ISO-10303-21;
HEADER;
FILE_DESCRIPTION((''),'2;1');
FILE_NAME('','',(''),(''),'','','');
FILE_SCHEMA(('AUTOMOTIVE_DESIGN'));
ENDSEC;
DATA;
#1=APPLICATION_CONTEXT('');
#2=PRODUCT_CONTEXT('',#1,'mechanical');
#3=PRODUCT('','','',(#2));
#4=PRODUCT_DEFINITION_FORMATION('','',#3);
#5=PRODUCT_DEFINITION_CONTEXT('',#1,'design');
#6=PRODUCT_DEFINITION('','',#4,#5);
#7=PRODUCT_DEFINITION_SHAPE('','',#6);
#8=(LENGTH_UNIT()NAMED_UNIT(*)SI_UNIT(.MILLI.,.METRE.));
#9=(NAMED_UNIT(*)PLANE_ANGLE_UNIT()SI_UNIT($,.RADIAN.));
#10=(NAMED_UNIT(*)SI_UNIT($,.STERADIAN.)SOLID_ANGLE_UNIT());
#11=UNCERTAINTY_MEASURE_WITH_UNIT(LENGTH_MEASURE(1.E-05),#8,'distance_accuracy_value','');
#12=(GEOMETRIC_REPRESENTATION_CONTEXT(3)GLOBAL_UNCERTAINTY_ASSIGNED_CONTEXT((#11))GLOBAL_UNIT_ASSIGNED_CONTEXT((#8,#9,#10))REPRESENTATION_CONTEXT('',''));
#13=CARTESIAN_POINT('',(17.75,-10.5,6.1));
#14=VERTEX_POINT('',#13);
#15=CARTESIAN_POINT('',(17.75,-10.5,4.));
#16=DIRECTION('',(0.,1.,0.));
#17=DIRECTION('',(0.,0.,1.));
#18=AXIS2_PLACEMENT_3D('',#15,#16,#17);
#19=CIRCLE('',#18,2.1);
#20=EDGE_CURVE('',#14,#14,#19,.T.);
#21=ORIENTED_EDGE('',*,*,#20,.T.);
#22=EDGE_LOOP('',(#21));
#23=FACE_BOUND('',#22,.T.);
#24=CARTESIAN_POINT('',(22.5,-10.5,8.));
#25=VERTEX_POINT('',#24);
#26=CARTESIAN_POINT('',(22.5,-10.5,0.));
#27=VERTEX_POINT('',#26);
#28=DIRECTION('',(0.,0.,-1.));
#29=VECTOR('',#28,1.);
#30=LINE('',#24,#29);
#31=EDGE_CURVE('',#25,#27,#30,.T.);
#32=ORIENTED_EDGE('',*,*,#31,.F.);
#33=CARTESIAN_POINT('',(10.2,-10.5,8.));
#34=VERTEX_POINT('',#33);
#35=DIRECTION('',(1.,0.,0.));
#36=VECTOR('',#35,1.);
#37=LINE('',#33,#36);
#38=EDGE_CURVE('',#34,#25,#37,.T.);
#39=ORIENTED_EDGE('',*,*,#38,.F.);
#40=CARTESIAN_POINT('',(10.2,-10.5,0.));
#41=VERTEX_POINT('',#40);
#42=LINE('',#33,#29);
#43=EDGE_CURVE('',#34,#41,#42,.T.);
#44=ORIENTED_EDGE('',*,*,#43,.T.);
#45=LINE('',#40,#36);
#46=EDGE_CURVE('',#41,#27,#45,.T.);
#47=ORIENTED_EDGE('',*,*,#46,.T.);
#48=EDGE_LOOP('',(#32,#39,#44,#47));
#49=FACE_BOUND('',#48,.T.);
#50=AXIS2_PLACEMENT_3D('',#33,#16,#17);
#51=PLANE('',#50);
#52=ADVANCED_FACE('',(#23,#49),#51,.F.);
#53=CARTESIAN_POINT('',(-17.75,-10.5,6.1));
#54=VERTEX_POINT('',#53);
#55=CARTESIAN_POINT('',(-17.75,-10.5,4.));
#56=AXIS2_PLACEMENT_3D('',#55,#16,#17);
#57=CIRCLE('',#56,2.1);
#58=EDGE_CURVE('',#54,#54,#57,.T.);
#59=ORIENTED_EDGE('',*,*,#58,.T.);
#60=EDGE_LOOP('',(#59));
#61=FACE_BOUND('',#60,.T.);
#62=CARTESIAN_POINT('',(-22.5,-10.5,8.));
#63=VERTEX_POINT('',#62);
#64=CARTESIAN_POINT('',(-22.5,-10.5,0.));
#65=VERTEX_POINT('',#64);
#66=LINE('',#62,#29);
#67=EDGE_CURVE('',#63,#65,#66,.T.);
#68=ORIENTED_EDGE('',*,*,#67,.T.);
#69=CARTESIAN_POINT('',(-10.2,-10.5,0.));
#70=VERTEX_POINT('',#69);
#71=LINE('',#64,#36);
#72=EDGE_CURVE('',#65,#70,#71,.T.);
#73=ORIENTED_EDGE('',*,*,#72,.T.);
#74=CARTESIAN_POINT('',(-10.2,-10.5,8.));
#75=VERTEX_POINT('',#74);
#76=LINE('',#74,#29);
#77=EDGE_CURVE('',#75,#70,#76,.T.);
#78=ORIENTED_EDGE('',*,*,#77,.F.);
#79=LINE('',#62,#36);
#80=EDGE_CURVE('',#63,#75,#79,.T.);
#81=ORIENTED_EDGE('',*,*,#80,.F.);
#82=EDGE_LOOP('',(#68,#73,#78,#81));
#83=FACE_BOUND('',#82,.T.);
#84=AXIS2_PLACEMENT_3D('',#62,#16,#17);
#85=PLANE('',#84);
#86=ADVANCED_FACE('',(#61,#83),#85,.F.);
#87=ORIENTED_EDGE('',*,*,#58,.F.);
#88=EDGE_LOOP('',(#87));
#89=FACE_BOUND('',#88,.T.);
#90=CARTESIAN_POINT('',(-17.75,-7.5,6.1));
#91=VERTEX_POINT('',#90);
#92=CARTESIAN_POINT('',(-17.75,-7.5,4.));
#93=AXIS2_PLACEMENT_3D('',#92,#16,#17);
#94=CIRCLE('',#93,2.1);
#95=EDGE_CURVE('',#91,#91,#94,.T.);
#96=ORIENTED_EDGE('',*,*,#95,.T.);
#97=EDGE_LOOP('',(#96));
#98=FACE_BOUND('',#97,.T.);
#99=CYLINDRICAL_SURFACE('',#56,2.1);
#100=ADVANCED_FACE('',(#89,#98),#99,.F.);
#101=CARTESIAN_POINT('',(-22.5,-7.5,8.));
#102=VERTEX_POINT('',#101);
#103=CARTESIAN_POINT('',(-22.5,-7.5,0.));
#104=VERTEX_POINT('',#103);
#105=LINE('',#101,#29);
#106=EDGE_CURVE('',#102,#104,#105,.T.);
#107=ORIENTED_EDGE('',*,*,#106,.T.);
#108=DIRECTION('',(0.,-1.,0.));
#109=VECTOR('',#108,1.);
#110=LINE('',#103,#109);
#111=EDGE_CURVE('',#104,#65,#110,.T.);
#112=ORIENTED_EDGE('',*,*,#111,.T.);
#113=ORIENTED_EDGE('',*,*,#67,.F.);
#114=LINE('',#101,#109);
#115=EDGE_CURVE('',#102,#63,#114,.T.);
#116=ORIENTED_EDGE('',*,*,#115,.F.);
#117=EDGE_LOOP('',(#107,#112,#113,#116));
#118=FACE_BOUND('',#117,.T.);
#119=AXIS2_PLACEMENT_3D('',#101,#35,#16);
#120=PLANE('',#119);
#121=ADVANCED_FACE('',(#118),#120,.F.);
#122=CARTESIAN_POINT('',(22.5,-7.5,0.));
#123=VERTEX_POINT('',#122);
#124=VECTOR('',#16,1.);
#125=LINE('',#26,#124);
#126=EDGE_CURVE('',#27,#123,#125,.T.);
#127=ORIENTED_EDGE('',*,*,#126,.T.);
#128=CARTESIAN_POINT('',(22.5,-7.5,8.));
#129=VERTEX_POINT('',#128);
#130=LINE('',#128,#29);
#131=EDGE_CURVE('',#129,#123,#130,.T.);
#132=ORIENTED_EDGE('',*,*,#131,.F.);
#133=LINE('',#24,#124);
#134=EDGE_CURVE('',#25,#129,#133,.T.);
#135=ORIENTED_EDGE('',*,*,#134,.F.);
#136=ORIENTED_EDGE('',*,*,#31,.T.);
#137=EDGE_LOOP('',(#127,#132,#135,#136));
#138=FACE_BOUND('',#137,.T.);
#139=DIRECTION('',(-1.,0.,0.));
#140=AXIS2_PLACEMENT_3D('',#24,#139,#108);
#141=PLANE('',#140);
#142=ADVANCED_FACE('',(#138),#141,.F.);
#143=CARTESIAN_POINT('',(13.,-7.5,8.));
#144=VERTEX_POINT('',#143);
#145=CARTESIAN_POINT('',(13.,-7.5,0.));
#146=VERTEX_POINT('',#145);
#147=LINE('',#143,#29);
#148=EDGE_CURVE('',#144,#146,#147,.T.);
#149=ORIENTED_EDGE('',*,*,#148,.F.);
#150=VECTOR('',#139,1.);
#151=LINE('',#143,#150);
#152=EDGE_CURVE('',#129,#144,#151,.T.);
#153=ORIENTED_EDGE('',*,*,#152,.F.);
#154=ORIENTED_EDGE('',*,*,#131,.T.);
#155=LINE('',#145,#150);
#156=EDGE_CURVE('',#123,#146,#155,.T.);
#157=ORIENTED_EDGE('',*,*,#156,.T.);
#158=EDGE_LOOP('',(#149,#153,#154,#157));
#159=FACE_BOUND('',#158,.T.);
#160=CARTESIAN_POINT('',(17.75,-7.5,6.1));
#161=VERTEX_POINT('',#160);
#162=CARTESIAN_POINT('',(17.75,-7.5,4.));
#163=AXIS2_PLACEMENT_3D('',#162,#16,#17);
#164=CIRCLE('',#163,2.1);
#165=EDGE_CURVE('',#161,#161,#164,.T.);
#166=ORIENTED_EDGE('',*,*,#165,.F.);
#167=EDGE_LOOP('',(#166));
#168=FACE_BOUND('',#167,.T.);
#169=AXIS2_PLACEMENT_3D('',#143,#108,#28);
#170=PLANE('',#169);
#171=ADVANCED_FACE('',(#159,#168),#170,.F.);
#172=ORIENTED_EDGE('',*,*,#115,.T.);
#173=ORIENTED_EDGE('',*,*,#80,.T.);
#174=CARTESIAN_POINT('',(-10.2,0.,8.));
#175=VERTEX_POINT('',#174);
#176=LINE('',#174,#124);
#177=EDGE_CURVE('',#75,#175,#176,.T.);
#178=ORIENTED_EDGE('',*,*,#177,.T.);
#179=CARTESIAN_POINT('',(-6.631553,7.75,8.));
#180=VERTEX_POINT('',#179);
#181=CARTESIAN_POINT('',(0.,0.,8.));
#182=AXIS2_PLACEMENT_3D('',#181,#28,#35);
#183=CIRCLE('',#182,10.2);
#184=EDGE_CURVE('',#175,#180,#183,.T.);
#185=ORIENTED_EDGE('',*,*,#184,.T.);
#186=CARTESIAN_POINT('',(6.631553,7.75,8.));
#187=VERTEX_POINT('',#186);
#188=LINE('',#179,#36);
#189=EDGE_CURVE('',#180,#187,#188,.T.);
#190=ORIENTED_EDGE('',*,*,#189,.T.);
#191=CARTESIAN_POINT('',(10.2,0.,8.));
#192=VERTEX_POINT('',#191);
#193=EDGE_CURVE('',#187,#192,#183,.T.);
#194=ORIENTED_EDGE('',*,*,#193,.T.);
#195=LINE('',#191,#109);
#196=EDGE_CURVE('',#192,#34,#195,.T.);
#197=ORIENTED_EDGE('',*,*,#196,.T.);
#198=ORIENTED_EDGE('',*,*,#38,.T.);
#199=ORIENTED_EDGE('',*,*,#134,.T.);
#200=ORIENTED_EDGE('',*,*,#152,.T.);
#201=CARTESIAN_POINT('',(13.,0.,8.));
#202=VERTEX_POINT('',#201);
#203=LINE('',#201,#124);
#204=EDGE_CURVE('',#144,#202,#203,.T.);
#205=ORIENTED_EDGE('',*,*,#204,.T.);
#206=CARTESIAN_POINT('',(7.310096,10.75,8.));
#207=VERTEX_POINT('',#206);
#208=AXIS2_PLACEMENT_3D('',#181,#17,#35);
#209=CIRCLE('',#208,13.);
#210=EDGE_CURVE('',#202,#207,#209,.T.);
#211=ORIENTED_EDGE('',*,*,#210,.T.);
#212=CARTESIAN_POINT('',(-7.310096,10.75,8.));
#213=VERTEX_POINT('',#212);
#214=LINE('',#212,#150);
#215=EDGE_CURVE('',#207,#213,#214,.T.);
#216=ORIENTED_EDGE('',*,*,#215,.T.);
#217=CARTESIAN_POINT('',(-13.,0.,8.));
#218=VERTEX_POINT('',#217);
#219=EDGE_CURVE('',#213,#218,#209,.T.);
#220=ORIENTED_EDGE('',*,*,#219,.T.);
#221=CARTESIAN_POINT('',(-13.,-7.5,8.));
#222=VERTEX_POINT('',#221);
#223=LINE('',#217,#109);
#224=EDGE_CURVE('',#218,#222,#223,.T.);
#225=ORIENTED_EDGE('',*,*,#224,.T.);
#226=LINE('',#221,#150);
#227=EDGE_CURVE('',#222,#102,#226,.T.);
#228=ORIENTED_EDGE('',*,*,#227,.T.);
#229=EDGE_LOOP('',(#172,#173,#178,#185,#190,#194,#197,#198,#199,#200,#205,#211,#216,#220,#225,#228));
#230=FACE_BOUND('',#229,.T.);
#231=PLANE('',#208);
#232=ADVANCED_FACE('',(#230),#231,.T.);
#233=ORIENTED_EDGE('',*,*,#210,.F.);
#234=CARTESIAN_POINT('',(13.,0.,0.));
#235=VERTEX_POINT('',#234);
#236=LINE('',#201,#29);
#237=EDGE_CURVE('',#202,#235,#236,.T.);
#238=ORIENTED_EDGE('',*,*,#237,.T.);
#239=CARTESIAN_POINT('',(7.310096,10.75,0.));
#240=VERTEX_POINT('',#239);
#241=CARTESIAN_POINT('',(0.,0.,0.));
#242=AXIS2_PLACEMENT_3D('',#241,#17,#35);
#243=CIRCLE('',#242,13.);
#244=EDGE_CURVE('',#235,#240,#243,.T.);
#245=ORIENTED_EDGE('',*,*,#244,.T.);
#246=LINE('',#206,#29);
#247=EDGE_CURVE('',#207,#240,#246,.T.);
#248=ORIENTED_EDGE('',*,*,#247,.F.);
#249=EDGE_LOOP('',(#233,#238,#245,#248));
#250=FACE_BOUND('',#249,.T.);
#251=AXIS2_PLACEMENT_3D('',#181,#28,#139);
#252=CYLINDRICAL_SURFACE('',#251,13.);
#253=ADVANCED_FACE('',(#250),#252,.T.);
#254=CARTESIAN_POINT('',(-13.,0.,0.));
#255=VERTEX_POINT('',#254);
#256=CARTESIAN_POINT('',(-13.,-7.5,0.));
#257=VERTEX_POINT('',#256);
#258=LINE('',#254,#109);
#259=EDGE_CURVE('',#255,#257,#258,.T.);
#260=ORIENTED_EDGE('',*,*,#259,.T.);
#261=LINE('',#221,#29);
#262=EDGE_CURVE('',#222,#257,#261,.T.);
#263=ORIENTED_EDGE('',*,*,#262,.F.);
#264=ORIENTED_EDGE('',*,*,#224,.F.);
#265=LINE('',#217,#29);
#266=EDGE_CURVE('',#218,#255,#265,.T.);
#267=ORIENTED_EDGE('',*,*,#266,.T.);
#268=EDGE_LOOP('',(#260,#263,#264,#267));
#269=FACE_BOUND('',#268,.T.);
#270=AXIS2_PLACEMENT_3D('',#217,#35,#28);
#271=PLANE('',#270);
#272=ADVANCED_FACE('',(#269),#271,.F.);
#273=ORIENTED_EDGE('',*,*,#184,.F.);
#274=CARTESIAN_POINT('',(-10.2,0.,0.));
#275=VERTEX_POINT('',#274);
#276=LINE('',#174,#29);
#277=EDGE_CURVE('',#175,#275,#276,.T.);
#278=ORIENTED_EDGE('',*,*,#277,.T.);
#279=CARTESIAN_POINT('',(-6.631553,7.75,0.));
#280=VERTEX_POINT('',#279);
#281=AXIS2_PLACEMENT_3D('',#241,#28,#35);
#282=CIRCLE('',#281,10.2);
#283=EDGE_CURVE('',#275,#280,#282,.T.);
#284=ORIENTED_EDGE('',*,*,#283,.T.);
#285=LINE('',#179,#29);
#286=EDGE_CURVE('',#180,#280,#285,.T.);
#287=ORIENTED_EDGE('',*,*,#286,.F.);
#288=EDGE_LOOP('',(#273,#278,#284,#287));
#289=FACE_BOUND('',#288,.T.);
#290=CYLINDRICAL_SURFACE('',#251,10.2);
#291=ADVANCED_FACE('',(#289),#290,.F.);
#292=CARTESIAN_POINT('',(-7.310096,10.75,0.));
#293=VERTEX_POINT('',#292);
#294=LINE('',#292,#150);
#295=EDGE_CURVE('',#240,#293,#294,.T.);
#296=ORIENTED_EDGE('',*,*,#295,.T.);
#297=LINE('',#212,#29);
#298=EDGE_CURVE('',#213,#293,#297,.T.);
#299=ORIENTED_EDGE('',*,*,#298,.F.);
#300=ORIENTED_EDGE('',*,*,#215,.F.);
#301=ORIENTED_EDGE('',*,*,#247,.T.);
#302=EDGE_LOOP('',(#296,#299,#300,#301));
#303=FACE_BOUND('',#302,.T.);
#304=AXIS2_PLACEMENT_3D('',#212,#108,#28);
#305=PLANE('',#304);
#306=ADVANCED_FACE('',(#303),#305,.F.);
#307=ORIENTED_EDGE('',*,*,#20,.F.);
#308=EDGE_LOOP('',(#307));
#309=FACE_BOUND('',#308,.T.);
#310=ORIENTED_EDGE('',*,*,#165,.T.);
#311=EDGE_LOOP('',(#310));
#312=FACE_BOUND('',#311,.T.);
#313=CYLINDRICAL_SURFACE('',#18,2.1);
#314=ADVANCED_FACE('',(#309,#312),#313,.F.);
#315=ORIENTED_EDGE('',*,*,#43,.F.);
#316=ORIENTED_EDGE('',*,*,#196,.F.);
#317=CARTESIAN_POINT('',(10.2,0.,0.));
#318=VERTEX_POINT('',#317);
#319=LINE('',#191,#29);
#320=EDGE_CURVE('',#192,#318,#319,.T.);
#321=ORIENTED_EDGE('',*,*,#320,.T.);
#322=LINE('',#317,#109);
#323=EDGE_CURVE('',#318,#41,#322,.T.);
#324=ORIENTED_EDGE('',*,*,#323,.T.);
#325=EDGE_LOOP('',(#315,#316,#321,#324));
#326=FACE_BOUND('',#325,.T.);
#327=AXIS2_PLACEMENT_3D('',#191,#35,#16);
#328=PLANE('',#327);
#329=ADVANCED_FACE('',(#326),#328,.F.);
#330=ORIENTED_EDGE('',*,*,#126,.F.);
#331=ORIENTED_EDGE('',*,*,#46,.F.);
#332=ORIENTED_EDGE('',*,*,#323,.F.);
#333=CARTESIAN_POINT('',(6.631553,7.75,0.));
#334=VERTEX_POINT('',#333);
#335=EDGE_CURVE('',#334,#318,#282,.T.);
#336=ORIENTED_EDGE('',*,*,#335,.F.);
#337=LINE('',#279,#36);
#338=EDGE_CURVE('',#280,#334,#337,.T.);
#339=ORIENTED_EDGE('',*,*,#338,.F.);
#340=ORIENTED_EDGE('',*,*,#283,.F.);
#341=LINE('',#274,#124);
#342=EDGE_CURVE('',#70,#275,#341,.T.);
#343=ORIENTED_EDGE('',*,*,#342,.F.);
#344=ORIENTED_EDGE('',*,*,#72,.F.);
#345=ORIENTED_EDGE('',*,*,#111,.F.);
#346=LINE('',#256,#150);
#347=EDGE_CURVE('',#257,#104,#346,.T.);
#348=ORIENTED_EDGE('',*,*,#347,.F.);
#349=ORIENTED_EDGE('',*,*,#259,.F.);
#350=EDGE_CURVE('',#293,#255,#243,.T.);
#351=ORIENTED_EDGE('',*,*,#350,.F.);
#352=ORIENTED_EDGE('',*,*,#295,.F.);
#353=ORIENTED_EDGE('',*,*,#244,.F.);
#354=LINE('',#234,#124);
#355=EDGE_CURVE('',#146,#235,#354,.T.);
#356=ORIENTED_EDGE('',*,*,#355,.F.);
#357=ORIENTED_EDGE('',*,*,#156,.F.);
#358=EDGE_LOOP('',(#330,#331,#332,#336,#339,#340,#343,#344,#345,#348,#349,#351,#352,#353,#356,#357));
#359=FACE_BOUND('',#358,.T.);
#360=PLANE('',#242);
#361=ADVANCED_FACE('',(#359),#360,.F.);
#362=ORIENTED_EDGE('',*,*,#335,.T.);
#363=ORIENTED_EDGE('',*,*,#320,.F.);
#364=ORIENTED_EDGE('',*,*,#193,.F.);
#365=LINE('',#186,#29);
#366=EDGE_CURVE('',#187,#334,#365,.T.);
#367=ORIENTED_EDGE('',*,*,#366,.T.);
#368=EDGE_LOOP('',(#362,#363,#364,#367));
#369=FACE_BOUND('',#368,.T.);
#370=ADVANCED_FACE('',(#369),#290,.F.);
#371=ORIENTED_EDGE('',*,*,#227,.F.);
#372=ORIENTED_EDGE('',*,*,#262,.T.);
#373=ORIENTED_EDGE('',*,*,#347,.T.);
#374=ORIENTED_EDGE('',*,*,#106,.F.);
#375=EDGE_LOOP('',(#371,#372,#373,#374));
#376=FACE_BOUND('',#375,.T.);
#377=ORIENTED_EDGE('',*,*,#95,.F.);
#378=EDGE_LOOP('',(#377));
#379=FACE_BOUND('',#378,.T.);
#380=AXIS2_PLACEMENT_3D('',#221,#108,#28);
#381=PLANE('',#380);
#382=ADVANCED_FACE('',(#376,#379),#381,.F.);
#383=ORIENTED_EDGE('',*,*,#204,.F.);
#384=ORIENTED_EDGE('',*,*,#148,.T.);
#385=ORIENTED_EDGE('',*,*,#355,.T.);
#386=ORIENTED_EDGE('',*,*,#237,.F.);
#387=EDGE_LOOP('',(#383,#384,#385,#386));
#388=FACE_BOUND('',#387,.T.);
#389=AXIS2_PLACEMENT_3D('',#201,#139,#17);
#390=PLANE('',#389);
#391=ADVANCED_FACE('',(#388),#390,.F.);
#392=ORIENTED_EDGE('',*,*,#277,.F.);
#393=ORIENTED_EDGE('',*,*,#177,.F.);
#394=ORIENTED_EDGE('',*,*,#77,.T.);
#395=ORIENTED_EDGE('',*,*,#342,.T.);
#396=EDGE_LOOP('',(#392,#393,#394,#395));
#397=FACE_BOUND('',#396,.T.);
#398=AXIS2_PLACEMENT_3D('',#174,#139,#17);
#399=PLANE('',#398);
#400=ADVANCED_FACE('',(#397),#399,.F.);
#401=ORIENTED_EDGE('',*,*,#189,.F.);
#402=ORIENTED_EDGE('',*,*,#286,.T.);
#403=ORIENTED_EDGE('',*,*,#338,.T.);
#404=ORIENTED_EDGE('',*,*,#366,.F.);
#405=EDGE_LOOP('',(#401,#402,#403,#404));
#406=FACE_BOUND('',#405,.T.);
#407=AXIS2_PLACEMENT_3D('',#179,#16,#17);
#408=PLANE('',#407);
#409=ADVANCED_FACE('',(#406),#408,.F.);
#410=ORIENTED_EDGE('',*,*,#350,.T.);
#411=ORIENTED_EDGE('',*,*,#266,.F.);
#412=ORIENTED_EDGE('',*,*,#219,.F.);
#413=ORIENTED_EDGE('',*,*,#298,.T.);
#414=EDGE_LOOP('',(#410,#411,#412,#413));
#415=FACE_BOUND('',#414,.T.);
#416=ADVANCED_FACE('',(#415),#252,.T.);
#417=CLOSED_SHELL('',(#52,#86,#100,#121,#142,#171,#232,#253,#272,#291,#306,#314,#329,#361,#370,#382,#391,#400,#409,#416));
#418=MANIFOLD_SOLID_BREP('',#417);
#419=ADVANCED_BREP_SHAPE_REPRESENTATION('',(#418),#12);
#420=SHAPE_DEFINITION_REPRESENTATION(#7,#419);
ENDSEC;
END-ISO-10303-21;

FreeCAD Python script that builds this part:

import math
import FreeCAD as App
import Part
import Sketcher

doc = App.newDocument("Part")
params = doc.addObject("Spreadsheet::Sheet", "Params")
for row, (alias, value) in enumerate([
    ("sketch1_radius", "13 mm"),
    ("sketch1_radius2", "10.2 mm"),
    ("sketch1_height", "3 mm"),
    ("sketch1_width", "12.3 mm"),
    ("sketch1_height2", "10.5 mm"),
    ("pad1_length", "8 mm"),
    ("sketch2_diameter", "4.2 mm"),
], start=1):
    params.set(f"A{row}", alias)
    params.set(f"B{row}", "=" + value)
    params.setAlias(f"B{row}", alias)

body = doc.addObject("PartDesign::Body", "Body")

sketch1 = doc.addObject("Sketcher::SketchObject", "Sketch")
body.addObject(sketch1)
sketch1.AttachmentSupport = (doc.XY_Plane, [""])
sketch1.MapMode = "FlatFace"
sketch1.addGeometry(Part.LineSegment(App.Vector(-6.631553, 7.75, 0), App.Vector(6.631553, 7.75, 0)), False)
sketch1.addGeometry(Part.ArcOfCircle(Part.Circle(App.Vector(0, 0, 0), App.Vector(0, 0, 1), 10.2), math.radians(0), math.radians(49.446915)), False)
sketch1.addGeometry(Part.LineSegment(App.Vector(10.2, 0, 0), App.Vector(10.2, -10.5, 0)), False)
sketch1.addGeometry(Part.LineSegment(App.Vector(10.2, -10.5, 0), App.Vector(22.5, -10.5, 0)), False)
sketch1.addGeometry(Part.LineSegment(App.Vector(22.5, -10.5, 0), App.Vector(22.5, -7.5, 0)), False)
sketch1.addGeometry(Part.LineSegment(App.Vector(22.5, -7.5, 0), App.Vector(13, -7.5, 0)), False)
sketch1.addGeometry(Part.LineSegment(App.Vector(13, -7.5, 0), App.Vector(13, 0, 0)), False)
sketch1.addGeometry(Part.ArcOfCircle(Part.Circle(App.Vector(0, 0, 0), App.Vector(0, 0, 1), 13), math.radians(0), math.radians(55.783949)), False)
sketch1.addGeometry(Part.LineSegment(App.Vector(7.310096, 10.75, 0), App.Vector(-7.310096, 10.75, 0)), False)
sketch1.addGeometry(Part.ArcOfCircle(Part.Circle(App.Vector(0, 0, 0), App.Vector(0, 0, 1), 13), math.radians(124.216051), math.radians(180)), False)
sketch1.addGeometry(Part.LineSegment(App.Vector(-13, 0, 0), App.Vector(-13, -7.5, 0)), False)
sketch1.addGeometry(Part.LineSegment(App.Vector(-13, -7.5, 0), App.Vector(-22.5, -7.5, 0)), False)
sketch1.addGeometry(Part.LineSegment(App.Vector(-22.5, -7.5, 0), App.Vector(-22.5, -10.5, 0)), False)
sketch1.addGeometry(Part.LineSegment(App.Vector(-22.5, -10.5, 0), App.Vector(-10.2, -10.5, 0)), False)
sketch1.addGeometry(Part.LineSegment(App.Vector(-10.2, -10.5, 0), App.Vector(-10.2, 0, 0)), False)
sketch1.addGeometry(Part.ArcOfCircle(Part.Circle(App.Vector(0, 0, 0), App.Vector(0, 0, 1), 10.2), math.radians(130.553085), math.radians(180)), False)
sketch1.addConstraint(Sketcher.Constraint("Coincident", 0, 2, 1, 2))
sketch1.addConstraint(Sketcher.Constraint("Tangent", 1, 1, 2, 1))
sketch1.addConstraint(Sketcher.Constraint("Coincident", 2, 2, 3, 1))
sketch1.addConstraint(Sketcher.Constraint("Coincident", 3, 2, 4, 1))
sketch1.addConstraint(Sketcher.Constraint("Coincident", 4, 2, 5, 1))
sketch1.addConstraint(Sketcher.Constraint("Coincident", 5, 2, 6, 1))
sketch1.addConstraint(Sketcher.Constraint("Tangent", 6, 2, 7, 1))
sketch1.addConstraint(Sketcher.Constraint("Coincident", 7, 2, 8, 1))
sketch1.addConstraint(Sketcher.Constraint("Coincident", 8, 2, 9, 1))
sketch1.addConstraint(Sketcher.Constraint("Tangent", 9, 2, 10, 1))
sketch1.addConstraint(Sketcher.Constraint("Coincident", 10, 2, 11, 1))
sketch1.addConstraint(Sketcher.Constraint("Coincident", 11, 2, 12, 1))
sketch1.addConstraint(Sketcher.Constraint("Coincident", 12, 2, 13, 1))
sketch1.addConstraint(Sketcher.Constraint("Coincident", 13, 2, 14, 1))
sketch1.addConstraint(Sketcher.Constraint("Tangent", 14, 2, 15, 2))
sketch1.addConstraint(Sketcher.Constraint("Coincident", 15, 1, 0, 1))
sketch1.addConstraint(Sketcher.Constraint("Horizontal", 0))
sketch1.addConstraint(Sketcher.Constraint("Vertical", 2))
sketch1.addConstraint(Sketcher.Constraint("Horizontal", 3))
sketch1.addConstraint(Sketcher.Constraint("Vertical", 4))
sketch1.addConstraint(Sketcher.Constraint("Horizontal", 5))
sketch1.addConstraint(Sketcher.Constraint("Vertical", 6))
sketch1.addConstraint(Sketcher.Constraint("Horizontal", 8))
sketch1.addConstraint(Sketcher.Constraint("Vertical", 10))
sketch1.addConstraint(Sketcher.Constraint("Horizontal", 11))
sketch1.addConstraint(Sketcher.Constraint("Vertical", 12))
sketch1.addConstraint(Sketcher.Constraint("Horizontal", 13))
sketch1.addConstraint(Sketcher.Constraint("Vertical", 14))
sketch1.addConstraint(Sketcher.Constraint("Coincident", 1, 3, -1, 1))
sketch1.addConstraint(Sketcher.Constraint("Coincident", 7, 3, -1, 1))
sketch1.addConstraint(Sketcher.Constraint("Coincident", 9, 3, -1, 1))
sketch1.addConstraint(Sketcher.Constraint("Coincident", 15, 3, -1, 1))
sketch1.addConstraint(Sketcher.Constraint("Equal", 7, 9))
sketch1.addConstraint(Sketcher.Constraint("Equal", 1, 15))
sketch1.addConstraint(Sketcher.Constraint("Symmetric", 4, 2, 11, 2, -2))
sketch1.addConstraint(Sketcher.Constraint("Horizontal", 3, 2, 12, 2))
sketch1.addConstraint(Sketcher.Constraint("Radius", 7, 13.0))
sketch1.addConstraint(Sketcher.Constraint("Radius", 1, 10.2))
sketch1.addConstraint(Sketcher.Constraint("DistanceY", 4, 1, 4, 2, 3.0))
sketch1.addConstraint(Sketcher.Constraint("DistanceX", 3, 1, 3, 2, 12.3))
sketch1.addConstraint(Sketcher.Constraint("DistanceY", 2, 2, 2, 1, 10.5))
sketch1.addConstraint(Sketcher.Constraint("DistanceY", 0, 2, 7, 2, 3.0))
sketch1.addConstraint(Sketcher.Constraint("DistanceY", -1, 1, 0, 2, 7.75))
sketch1.setExpression("Constraints[36]", "Params.sketch1_radius")
sketch1.setExpression("Constraints[37]", "Params.sketch1_radius2")
sketch1.setExpression("Constraints[38]", "Params.sketch1_height")
sketch1.setExpression("Constraints[39]", "Params.sketch1_width")
sketch1.setExpression("Constraints[40]", "Params.sketch1_height2")
pad1 = doc.addObject("PartDesign::Pad", "Pad")
body.addObject(pad1)
pad1.Profile = sketch1
pad1.setExpression("Length", "Params.pad1_length")

sketch2 = doc.addObject("Sketcher::SketchObject", "Sketch001")
body.addObject(sketch2)
sketch2.AttachmentSupport = (doc.XZ_Plane, [""])
sketch2.MapMode = "FlatFace"
sketch2.AttachmentOffset = App.Placement(App.Vector(0, 0, 7.5), App.Rotation())
sketch2.addGeometry(Part.Circle(App.Vector(-17.75, 4, 0), App.Vector(0, 0, 1), 2.1), False)
sketch2.addGeometry(Part.Circle(App.Vector(17.75, 4, 0), App.Vector(0, 0, 1), 2.1), False)
sketch2.addConstraint(Sketcher.Constraint("Equal", 0, 1))
sketch2.addConstraint(Sketcher.Constraint("Symmetric", 0, 3, 1, 3, -2))
sketch2.addConstraint(Sketcher.Constraint("Diameter", 0, 4.2))
sketch2.addConstraint(Sketcher.Constraint("DistanceY", -1, 1, 0, 3, 4.0))
sketch2.addConstraint(Sketcher.Constraint("DistanceX", 0, 3, 1, 3, 35.5))
sketch2.setExpression("Constraints[2]", "Params.sketch2_diameter")
pocket1 = doc.addObject("PartDesign::Pocket", "Pocket")
body.addObject(pocket1)
pocket1.Profile = sketch2
pocket1.Type = "ThroughAll"
pocket1.Reversed = True

doc.recompute()
